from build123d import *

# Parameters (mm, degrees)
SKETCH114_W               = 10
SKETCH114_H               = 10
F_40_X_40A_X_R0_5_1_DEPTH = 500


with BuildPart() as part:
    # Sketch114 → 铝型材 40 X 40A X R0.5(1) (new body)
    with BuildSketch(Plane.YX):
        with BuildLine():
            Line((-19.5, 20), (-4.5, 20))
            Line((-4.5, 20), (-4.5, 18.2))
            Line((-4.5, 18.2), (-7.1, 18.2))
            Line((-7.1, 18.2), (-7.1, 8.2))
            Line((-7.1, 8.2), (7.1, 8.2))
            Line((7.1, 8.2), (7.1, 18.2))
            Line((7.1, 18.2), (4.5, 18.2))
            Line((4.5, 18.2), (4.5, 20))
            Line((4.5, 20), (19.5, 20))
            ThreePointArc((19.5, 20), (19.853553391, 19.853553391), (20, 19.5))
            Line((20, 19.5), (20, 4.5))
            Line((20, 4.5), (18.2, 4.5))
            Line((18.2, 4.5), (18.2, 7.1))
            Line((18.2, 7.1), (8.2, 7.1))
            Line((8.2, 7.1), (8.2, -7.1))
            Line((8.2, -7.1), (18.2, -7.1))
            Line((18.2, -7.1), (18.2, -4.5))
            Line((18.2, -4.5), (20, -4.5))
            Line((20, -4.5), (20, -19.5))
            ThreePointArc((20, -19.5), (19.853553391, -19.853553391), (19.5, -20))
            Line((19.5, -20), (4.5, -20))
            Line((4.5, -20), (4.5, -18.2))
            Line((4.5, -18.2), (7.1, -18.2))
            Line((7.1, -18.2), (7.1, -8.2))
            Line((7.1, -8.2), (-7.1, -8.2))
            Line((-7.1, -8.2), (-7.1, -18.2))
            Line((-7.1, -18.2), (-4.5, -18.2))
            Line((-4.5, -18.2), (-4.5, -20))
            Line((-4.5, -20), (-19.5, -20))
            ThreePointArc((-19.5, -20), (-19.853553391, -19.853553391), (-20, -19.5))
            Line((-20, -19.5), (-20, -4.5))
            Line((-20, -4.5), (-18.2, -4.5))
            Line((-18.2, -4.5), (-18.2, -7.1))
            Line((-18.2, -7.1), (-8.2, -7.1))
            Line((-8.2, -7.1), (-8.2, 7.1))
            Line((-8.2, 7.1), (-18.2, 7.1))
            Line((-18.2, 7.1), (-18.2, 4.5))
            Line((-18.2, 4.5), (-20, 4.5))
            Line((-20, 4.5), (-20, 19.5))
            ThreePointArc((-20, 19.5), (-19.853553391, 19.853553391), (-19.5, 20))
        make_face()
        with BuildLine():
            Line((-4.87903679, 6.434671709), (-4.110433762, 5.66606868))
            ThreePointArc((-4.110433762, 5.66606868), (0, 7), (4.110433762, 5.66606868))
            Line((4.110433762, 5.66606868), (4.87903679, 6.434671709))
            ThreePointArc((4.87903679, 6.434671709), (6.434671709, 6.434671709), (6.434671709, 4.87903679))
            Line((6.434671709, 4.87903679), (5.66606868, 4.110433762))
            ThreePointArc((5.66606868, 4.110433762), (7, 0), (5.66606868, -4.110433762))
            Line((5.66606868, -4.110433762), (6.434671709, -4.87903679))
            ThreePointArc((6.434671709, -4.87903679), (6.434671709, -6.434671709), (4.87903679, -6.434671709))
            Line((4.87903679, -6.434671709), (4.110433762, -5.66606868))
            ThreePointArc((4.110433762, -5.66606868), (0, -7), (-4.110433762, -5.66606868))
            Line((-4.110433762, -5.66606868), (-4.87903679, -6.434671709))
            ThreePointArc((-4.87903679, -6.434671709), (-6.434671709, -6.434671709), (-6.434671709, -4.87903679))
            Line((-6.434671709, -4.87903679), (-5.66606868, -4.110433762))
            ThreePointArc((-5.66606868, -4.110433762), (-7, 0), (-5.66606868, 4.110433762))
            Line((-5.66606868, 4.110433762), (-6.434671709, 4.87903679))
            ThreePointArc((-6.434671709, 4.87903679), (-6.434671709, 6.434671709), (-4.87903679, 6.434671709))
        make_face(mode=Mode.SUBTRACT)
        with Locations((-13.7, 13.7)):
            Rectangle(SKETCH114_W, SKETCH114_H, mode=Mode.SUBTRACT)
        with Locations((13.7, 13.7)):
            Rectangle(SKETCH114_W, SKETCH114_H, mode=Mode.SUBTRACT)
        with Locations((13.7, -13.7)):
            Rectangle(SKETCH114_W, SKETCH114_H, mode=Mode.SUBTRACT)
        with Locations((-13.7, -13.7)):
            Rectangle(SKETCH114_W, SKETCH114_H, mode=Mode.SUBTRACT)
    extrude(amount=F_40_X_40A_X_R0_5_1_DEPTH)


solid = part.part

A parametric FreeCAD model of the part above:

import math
import FreeCAD as App
import Part
import Sketcher

V = App.Vector
Q = App.Units.Quantity


def add_polygon(sketch, points):
    """Adds a closed chain of lines whose ends are joined by coincident constraints."""
    first, n = sketch.GeometryCount, len(points)
    for a, b in zip(points, points[1:] + points[:1]):
        sketch.addGeometry(Part.LineSegment(App.Vector(*a, 0), App.Vector(*b, 0)), False)
    for i in range(n):
        sketch.addConstraint(Sketcher.Constraint("Coincident", first + i, 2, first + (i + 1) % n, 1))

doc = App.newDocument("Part")
body = doc.addObject("PartDesign::Body", "Body")

# Sketch on XY plane
sketch1 = body.newObject("Sketcher::SketchObject", "Sketch")
sketch1.AttachmentSupport = (doc.getObject("XY_Plane"), [""])
sketch1.MapMode = "FlatFace"
sketch1.addGeometry(Part.LineSegment(V(20, -4.5, 0), V(20, -19.5, 0)), False)  # 0
sketch1.addGeometry(Part.ArcOfCircle(Part.Circle(V(19.5, -19.5, 0), V(0, 0, 1), 0.5), math.radians(-90), math.radians(0)), False)  # 1
sketch1.addGeometry(Part.LineSegment(V(19.5, -20, 0), V(4.5, -20, 0)), False)  # 2
sketch1.addGeometry(Part.LineSegment(V(4.5, -20, 0), V(4.5, -18.2, 0)), False)  # 3
sketch1.addGeometry(Part.LineSegment(V(4.5, -18.2, 0), V(7.1, -18.2, 0)), False)  # 4
sketch1.addGeometry(Part.LineSegment(V(7.1, -18.2, 0), V(7.1, -8.2, 0)), False)  # 5
sketch1.addGeometry(Part.LineSegment(V(7.1, -8.2, 0), V(-7.1, -8.2, 0)), False)  # 6
sketch1.addGeometry(Part.LineSegment(V(-7.1, -8.2, 0), V(-7.1, -18.2, 0)), False)  # 7
sketch1.addGeometry(Part.LineSegment(V(-7.1, -18.2, 0), V(-4.5, -18.2, 0)), False)  # 8
sketch1.addGeometry(Part.LineSegment(V(-4.5, -18.2, 0), V(-4.5, -20, 0)), False)  # 9
sketch1.addGeometry(Part.LineSegment(V(-4.5, -20, 0), V(-19.5, -20, 0)), False)  # 10
sketch1.addGeometry(Part.ArcOfCircle(Part.Circle(V(-19.5, -19.5, 0), V(0, 0, 1), 0.5), math.radians(180), math.radians(270)), False)  # 11
sketch1.addGeometry(Part.LineSegment(V(-20, -19.5, 0), V(-20, -4.5, 0)), False)  # 12
sketch1.addGeometry(Part.LineSegment(V(-20, -4.5, 0), V(-18.2, -4.5, 0)), False)  # 13
sketch1.addGeometry(Part.LineSegment(V(-18.2, -4.5, 0), V(-18.2, -7.1, 0)), False)  # 14
sketch1.addGeometry(Part.LineSegment(V(-18.2, -7.1, 0), V(-8.2, -7.1, 0)), False)  # 15
sketch1.addGeometry(Part.LineSegment(V(-8.2, -7.1, 0), V(-8.2, 7.1, 0)), False)  # 16
sketch1.addGeometry(Part.LineSegment(V(-8.2, 7.1, 0), V(-18.2, 7.1, 0)), False)  # 17
sketch1.addGeometry(Part.LineSegment(V(-18.2, 7.1, 0), V(-18.2, 4.5, 0)), False)  # 18
sketch1.addGeometry(Part.LineSegment(V(-18.2, 4.5, 0), V(-20, 4.5, 0)), False)  # 19
sketch1.addGeometry(Part.LineSegment(V(-20, 4.5, 0), V(-20, 19.5, 0)), False)  # 20
sketch1.addGeometry(Part.ArcOfCircle(Part.Circle(V(-19.5, 19.5, 0), V(0, 0, 1), 0.5), math.radians(90), math.radians(180)), False)  # 21
sketch1.addGeometry(Part.LineSegment(V(-19.5, 20, 0), V(-4.5, 20, 0)), False)  # 22
sketch1.addGeometry(Part.LineSegment(V(-4.5, 20, 0), V(-4.5, 18.2, 0)), False)  # 23
sketch1.addGeometry(Part.LineSegment(V(-4.5, 18.2, 0), V(-7.1, 18.2, 0)), False)  # 24
sketch1.addGeometry(Part.LineSegment(V(-7.1, 18.2, 0), V(-7.1, 8.2, 0)), False)  # 25
sketch1.addGeometry(Part.LineSegment(V(-7.1, 8.2, 0), V(7.1, 8.2, 0)), False)  # 26
sketch1.addGeometry(Part.LineSegment(V(7.1, 8.2, 0), V(7.1, 18.2, 0)), False)  # 27
sketch1.addGeometry(Part.LineSegment(V(7.1, 18.2, 0), V(4.5, 18.2, 0)), False)  # 28
sketch1.addGeometry(Part.LineSegment(V(4.5, 18.2, 0), V(4.5, 20, 0)), False)  # 29
sketch1.addGeometry(Part.LineSegment(V(4.5, 20, 0), V(19.5, 20, 0)), False)  # 30
sketch1.addGeometry(Part.ArcOfCircle(Part.Circle(V(19.5, 19.5, 0), V(0, 0, 1), 0.5), math.radians(0), math.radians(90)), False)  # 31
sketch1.addGeometry(Part.LineSegment(V(20, 19.5, 0), V(20, 4.5, 0)), False)  # 32
sketch1.addGeometry(Part.LineSegment(V(20, 4.5, 0), V(18.2, 4.5, 0)), False)  # 33
sketch1.addGeometry(Part.LineSegment(V(18.2, 4.5, 0), V(18.2, 7.1, 0)), False)  # 34
sketch1.addGeometry(Part.LineSegment(V(18.2, 7.1, 0), V(8.2, 7.1, 0)), False)  # 35
sketch1.addGeometry(Part.LineSegment(V(8.2, 7.1, 0), V(8.2, -7.1, 0)), False)  # 36
sketch1.addGeometry(Part.LineSegment(V(8.2, -7.1, 0), V(18.2, -7.1, 0)), False)  # 37
sketch1.addGeometry(Part.LineSegment(V(18.2, -7.1, 0), V(18.2, -4.5, 0)), False)  # 38
sketch1.addGeometry(Part.LineSegment(V(18.2, -4.5, 0), V(20, -4.5, 0)), False)  # 39
add_polygon(sketch1, [(-18.7, 8.7), (-8.7, 8.7), (-8.7, 18.7), (-18.7, 18.7)])  # lines 40-43
sketch1.addGeometry(Part.LineSegment(V(6.43, -4.88, 0), V(5.67, -4.11, 0)), False)  # 44
sketch1.addGeometry(Part.ArcOfCircle(Part.Circle(V(0, 0, 0), V(0, 0, 1), 7), math.radians(-36), math.radians(36)), False)  # 45
sketch1.addGeometry(Part.LineSegment(V(5.67, 4.11, 0), V(6.43, 4.88, 0)), False)  # 46
sketch1.addGeometry(Part.ArcOfCircle(Part.Circle(V(5.66, 5.66, 0), V(0, 0, 1), 1.1), math.radians(-45), math.radians(135)), False)  # 47
sketch1.addGeometry(Part.LineSegment(V(4.88, 6.43, 0), V(4.11, 5.67, 0)), False)  # 48
sketch1.addGeometry(Part.ArcOfCircle(Part.Circle(V(0, 0, 0), V(0, 0, 1), 7), math.radians(54), math.radians(126)), False)  # 49
sketch1.addGeometry(Part.LineSegment(V(-4.11, 5.67, 0), V(-4.88, 6.43, 0)), False)  # 50
sketch1.addGeometry(Part.ArcOfCircle(Part.Circle(V(-5.66, 5.66, 0), V(0, 0, 1), 1.1), math.radians(45), math.radians(225)), False)  # 51
sketch1.addGeometry(Part.LineSegment(V(-6.43, 4.88, 0), V(-5.67, 4.11, 0)), False)  # 52
sketch1.addGeometry(Part.ArcOfCircle(Part.Circle(V(0, 0, 0), V(0, 0, 1), 7), math.radians(144), math.radians(216)), False)  # 53
sketch1.addGeometry(Part.LineSegment(V(-5.67, -4.11, 0), V(-6.43, -4.88, 0)), False)  # 54
sketch1.addGeometry(Part.ArcOfCircle(Part.Circle(V(-5.66, -5.66, 0), V(0, 0, 1), 1.1), math.radians(135), math.radians(315)), False)  # 55
sketch1.addGeometry(Part.LineSegment(V(-4.88, -6.43, 0), V(-4.11, -5.67, 0)), False)  # 56
sketch1.addGeometry(Part.ArcOfCircle(Part.Circle(V(0, 0, 0), V(0, 0, 1), 7), math.radians(-126), math.radians(-54)), False)  # 57
sketch1.addGeometry(Part.LineSegment(V(4.11, -5.67, 0), V(4.88, -6.43, 0)), False)  # 58
sketch1.addGeometry(Part.ArcOfCircle(Part.Circle(V(5.66, -5.66, 0), V(0, 0, 1), 1.1), math.radians(-135), math.radians(45)), False)  # 59
add_polygon(sketch1, [(-18.7, -18.7), (-8.7, -18.7), (-8.7, -8.7), (-18.7, -8.7)])  # lines 60-63
add_polygon(sketch1, [(8.7, 8.7), (18.7, 8.7), (18.7, 18.7), (8.7, 18.7)])  # lines 64-67
add_polygon(sketch1, [(8.7, -18.7), (18.7, -18.7), (18.7, -8.7), (8.7, -8.7)])  # lines 68-71
sketch1.addConstraint([
    Sketcher.Constraint("Tangent", 0, 2, 1, 2),
    Sketcher.Constraint("Tangent", 1, 1, 2, 1),
    Sketcher.Constraint("Coincident", 2, 2, 3, 1),
    Sketcher.Constraint("Coincident", 3, 2, 4, 1),
    Sketcher.Constraint("Coincident", 4, 2, 5, 1),
    Sketcher.Constraint("Coincident", 5, 2, 6, 1),
    Sketcher.Constraint("Coincident", 6, 2, 7, 1),
    Sketcher.Constraint("Coincident", 7, 2, 8, 1),
    Sketcher.Constraint("Coincident", 8, 2, 9, 1),
    Sketcher.Constraint("Coincident", 9, 2, 10, 1),
    Sketcher.Constraint("Tangent", 10, 2, 11, 2),
    Sketcher.Constraint("Tangent", 11, 1, 12, 1),
    Sketcher.Constraint("Coincident", 12, 2, 13, 1),
    Sketcher.Constraint("Coincident", 13, 2, 14, 1),
    Sketcher.Constraint("Coincident", 14, 2, 15, 1),
    Sketcher.Constraint("Coincident", 15, 2, 16, 1),
    Sketcher.Constraint("Coincident", 16, 2, 17, 1),
    Sketcher.Constraint("Coincident", 17, 2, 18, 1),
    Sketcher.Constraint("Coincident", 18, 2, 19, 1),
    Sketcher.Constraint("Coincident", 19, 2, 20, 1),
    Sketcher.Constraint("Tangent", 20, 2, 21, 2),
    Sketcher.Constraint("Tangent", 21, 1, 22, 1),
    Sketcher.Constraint("Coincident", 22, 2, 23, 1),
    Sketcher.Constraint("Coincident", 23, 2, 24, 1),
    Sketcher.Constraint("Coincident", 24, 2, 25, 1),
    Sketcher.Constraint("Coincident", 25, 2, 26, 1),
    Sketcher.Constraint("Coincident", 26, 2, 27, 1),
    Sketcher.Constraint("Coincident", 27, 2, 28, 1),
    Sketcher.Constraint("Coincident", 28, 2, 29, 1),
    Sketcher.Constraint("Coincident", 29, 2, 30, 1),
    Sketcher.Constraint("Tangent", 30, 2, 31, 2),
    Sketcher.Constraint("Tangent", 31, 1, 32, 1),
    Sketcher.Constraint("Coincident", 32, 2, 33, 1),
    Sketcher.Constraint("Coincident", 33, 2, 34, 1),
    Sketcher.Constraint("Coincident", 34, 2, 35, 1),
    Sketcher.Constraint("Coincident", 35, 2, 36, 1),
    Sketcher.Constraint("Coincident", 36, 2, 37, 1),
    Sketcher.Constraint("Coincident", 37, 2, 38, 1),
    Sketcher.Constraint("Coincident", 38, 2, 39, 1),
    Sketcher.Constraint("Coincident", 39, 2, 0, 1),
    Sketcher.Constraint("Coincident", 44, 2, 45, 1),
    Sketcher.Constraint("Coincident", 45, 2, 46, 1),
    Sketcher.Constraint("Tangent", 46, 2, 47, 1),
    Sketcher.Constraint("Tangent", 47, 2, 48, 1),
    Sketcher.Constraint("Coincident", 48, 2, 49, 1),
    Sketcher.Constraint("Coincident", 49, 2, 50, 1),
    Sketcher.Constraint("Tangent", 50, 2, 51, 1),
    Sketcher.Constraint("Tangent", 51, 2, 52, 1),
    Sketcher.Constraint("Coincident", 52, 2, 53, 1),
    Sketcher.Constraint("Coincident", 53, 2, 54, 1),
    Sketcher.Constraint("Tangent", 54, 2, 55, 1),
    Sketcher.Constraint("Tangent", 55, 2, 56, 1),
    Sketcher.Constraint("Coincident", 56, 2, 57, 1),
    Sketcher.Constraint("Coincident", 57, 2, 58, 1),
    Sketcher.Constraint("Tangent", 58, 2, 59, 1),
    Sketcher.Constraint("Tangent", 59, 2, 44, 1),
    Sketcher.Constraint("Vertical", 0),
    Sketcher.Constraint("Horizontal", 2),
    Sketcher.Constraint("Vertical", 3),
    Sketcher.Constraint("Horizontal", 4),
    Sketcher.Constraint("Vertical", 5),
    Sketcher.Constraint("Horizontal", 6),
    Sketcher.Constraint("Vertical", 7),
    Sketcher.Constraint("Horizontal", 8),
    Sketcher.Constraint("Vertical", 9),
    Sketcher.Constraint("Horizontal", 10),
    Sketcher.Constraint("Vertical", 12),
    Sketcher.Constraint("Horizontal", 13),
    Sketcher.Constraint("Vertical", 14),
    Sketcher.Constraint("Horizontal", 15),
    Sketcher.Constraint("Vertical", 16),
    Sketcher.Constraint("Horizontal", 17),
    Sketcher.Constraint("Vertical", 18),
    Sketcher.Constraint("Horizontal", 19),
    Sketcher.Constraint("Vertical", 20),
    Sketcher.Constraint("Horizontal", 22),
    Sketcher.Constraint("Vertical", 23),
    Sketcher.Constraint("Horizontal", 24),
    Sketcher.Constraint("Vertical", 25),
    Sketcher.Constraint("Horizontal", 26),
    Sketcher.Constraint("Vertical", 27),
    Sketcher.Constraint("Horizontal", 28),
    Sketcher.Constraint("Vertical", 29),
    Sketcher.Constraint("Horizontal", 30),
    Sketcher.Constraint("Vertical", 32),
    Sketcher.Constraint("Horizontal", 33),
    Sketcher.Constraint("Vertical", 34),
    Sketcher.Constraint("Horizontal", 35),
    Sketcher.Constraint("Vertical", 36),
    Sketcher.Constraint("Horizontal", 37),
    Sketcher.Constraint("Vertical", 38),
    Sketcher.Constraint("Horizontal", 39),
    Sketcher.Constraint("Horizontal", 40),
    Sketcher.Constraint("Vertical", 41),
    Sketcher.Constraint("Horizontal", 42),
    Sketcher.Constraint("Vertical", 43),
    Sketcher.Constraint("Horizontal", 60),
    Sketcher.Constraint("Vertical", 61),
    Sketcher.Constraint("Horizontal", 62),
    Sketcher.Constraint("Vertical", 63),
    Sketcher.Constraint("Horizontal", 64),
    Sketcher.Constraint("Vertical", 65),
    Sketcher.Constraint("Horizontal", 66),
    Sketcher.Constraint("Vertical", 67),
    Sketcher.Constraint("Horizontal", 68),
    Sketcher.Constraint("Vertical", 69),
    Sketcher.Constraint("Horizontal", 70),
    Sketcher.Constraint("Vertical", 71),
    Sketcher.Constraint("Coincident", 45, 3, -1, 1),
    Sketcher.Constraint("Coincident", 49, 3, -1, 1),
    Sketcher.Constraint("Coincident", 53, 3, -1, 1),
    Sketcher.Constraint("Coincident", 57, 3, -1, 1),
    Sketcher.Constraint("Equal", 1, 11),
    Sketcher.Constraint("Equal", 11, 21),
    Sketcher.Constraint("Equal", 21, 31),
    Sketcher.Constraint("Equal", 45, 49),
    Sketcher.Constraint("Equal", 47, 51),
    Sketcher.Constraint("Equal", 49, 53),
    Sketcher.Constraint("Equal", 51, 55),
    Sketcher.Constraint("Equal", 53, 57),
    Sketcher.Constraint("Equal", 55, 59),
    Sketcher.Constraint("Symmetric", 1, 3, 21, 3, -1, 1),
    Sketcher.Constraint("Symmetric", 11, 3, 31, 3, -1, 1),
    Sketcher.Constraint("Symmetric", 47, 3, 55, 3, -1, 1),
    Sketcher.Constraint("Symmetric", 51, 3, 59, 3, -1, 1),
    Sketcher.Constraint("Symmetric", 3, 2, 23, 2, -1, 1),
    Sketcher.Constraint("Symmetric", 5, 2, 25, 2, -1, 1),
    Sketcher.Constraint("Symmetric", 7, 2, 27, 2, -1, 1),
    Sketcher.Constraint("Symmetric", 13, 2, 33, 2, -1, 1),
    Sketcher.Constraint("Symmetric", 15, 2, 35, 2, -1, 1),
    Sketcher.Constraint("Symmetric", 17, 2, 37, 2, -1, 1),
    Sketcher.Constraint("Symmetric", 62, 2, 64, 2, -1, 1),
    Sketcher.Constraint("Symmetric", 60, 2, 66, 2, -1, 1),
    Sketcher.Constraint("Symmetric", 42, 2, 68, 2, -1, 1),
    Sketcher.Constraint("Symmetric", 40, 2, 70, 2, -1, 1),
    Sketcher.Constraint("Symmetric", 1, 3, 11, 3, -2),
    Sketcher.Constraint("Symmetric", 47, 3, 51, 3, -2),
    Sketcher.Constraint("Symmetric", 4, 2, 7, 2, -2),
    Sketcher.Constraint("Symmetric", 18, 2, 33, 2, -2),
    Sketcher.Constraint("Symmetric", 43, 2, 64, 2, -2),
    Sketcher.Constraint("Symmetric", 41, 2, 66, 2, -2),
    Sketcher.Constraint("Perpendicular", 44, 46),
    Sketcher.Constraint("Parallel", 46, 48),
    Sketcher.Constraint("Perpendicular", 48, 50),
    Sketcher.Constraint("Parallel", 50, 52),
    Sketcher.Constraint("Perpendicular", 52, 54),
    Sketcher.Constraint("Parallel", 54, 56),
    Sketcher.Constraint("Perpendicular", 56, 58),
    Sketcher.Constraint("Horizontal", 17, 2, 34, 2),
    Sketcher.Constraint("Horizontal", 13, 2, 38, 2),
    Sketcher.Constraint("Horizontal", 48, 2, 49, 2),
    Sketcher.Constraint("Vertical", 9, 2, 22, 2),
    Sketcher.Constraint("Vertical", 3, 2, 28, 2),
    Sketcher.Constraint("Equal", 37, 40),
    Sketcher.Constraint("Equal", 30, 0),
    Sketcher.Constraint("Equal", 39, 3),
    Sketcher.Constraint("Equal", 70, 5),
    Sketcher.Constraint("Equal", 28, 14),
    Sketcher.Constraint("Equal", 26, 16),
    Sketcher.Constraint("Equal", 27, 41),
    Sketcher.Constraint("Equal", 46, 48),
    Sketcher.Constraint("Radius", 45, Q("7 mm")),
    Sketcher.Constraint("Radius", 1, Q("0.5 mm")),
    Sketcher.Constraint("Radius", 47, Q("1.1 mm")),
    Sketcher.Constraint("DistanceX", 2, 2, 2, 1, Q("15 mm")),
    Sketcher.Constraint("DistanceX", 15, 1, 15, 2, Q("10 mm")),
    Sketcher.Constraint("DistanceX", 4, 1, 4, 2, Q("2.6 mm")),
    Sketcher.Constraint("DistanceX", 6, 2, 6, 1, Q("14.2 mm")),
    Sketcher.Constraint("DistanceX", 13, 1, 13, 2, Q("1.8 mm")),
    Sketcher.Constraint("DistanceX", 40, 2, -1, 1, Q("8.7 mm")),
    Sketcher.Constraint("DistanceY", -1, 1, 40, 2, Q("8.7 mm")),
    Sketcher.Constraint("Distance", 44, Q("1.086969 mm")),
])
pad1 = body.newObject("PartDesign::Pad", "Pad")
pad1.Profile = sketch1
pad1.Length = 500
pad1.Reversed = True

doc.recompute()
